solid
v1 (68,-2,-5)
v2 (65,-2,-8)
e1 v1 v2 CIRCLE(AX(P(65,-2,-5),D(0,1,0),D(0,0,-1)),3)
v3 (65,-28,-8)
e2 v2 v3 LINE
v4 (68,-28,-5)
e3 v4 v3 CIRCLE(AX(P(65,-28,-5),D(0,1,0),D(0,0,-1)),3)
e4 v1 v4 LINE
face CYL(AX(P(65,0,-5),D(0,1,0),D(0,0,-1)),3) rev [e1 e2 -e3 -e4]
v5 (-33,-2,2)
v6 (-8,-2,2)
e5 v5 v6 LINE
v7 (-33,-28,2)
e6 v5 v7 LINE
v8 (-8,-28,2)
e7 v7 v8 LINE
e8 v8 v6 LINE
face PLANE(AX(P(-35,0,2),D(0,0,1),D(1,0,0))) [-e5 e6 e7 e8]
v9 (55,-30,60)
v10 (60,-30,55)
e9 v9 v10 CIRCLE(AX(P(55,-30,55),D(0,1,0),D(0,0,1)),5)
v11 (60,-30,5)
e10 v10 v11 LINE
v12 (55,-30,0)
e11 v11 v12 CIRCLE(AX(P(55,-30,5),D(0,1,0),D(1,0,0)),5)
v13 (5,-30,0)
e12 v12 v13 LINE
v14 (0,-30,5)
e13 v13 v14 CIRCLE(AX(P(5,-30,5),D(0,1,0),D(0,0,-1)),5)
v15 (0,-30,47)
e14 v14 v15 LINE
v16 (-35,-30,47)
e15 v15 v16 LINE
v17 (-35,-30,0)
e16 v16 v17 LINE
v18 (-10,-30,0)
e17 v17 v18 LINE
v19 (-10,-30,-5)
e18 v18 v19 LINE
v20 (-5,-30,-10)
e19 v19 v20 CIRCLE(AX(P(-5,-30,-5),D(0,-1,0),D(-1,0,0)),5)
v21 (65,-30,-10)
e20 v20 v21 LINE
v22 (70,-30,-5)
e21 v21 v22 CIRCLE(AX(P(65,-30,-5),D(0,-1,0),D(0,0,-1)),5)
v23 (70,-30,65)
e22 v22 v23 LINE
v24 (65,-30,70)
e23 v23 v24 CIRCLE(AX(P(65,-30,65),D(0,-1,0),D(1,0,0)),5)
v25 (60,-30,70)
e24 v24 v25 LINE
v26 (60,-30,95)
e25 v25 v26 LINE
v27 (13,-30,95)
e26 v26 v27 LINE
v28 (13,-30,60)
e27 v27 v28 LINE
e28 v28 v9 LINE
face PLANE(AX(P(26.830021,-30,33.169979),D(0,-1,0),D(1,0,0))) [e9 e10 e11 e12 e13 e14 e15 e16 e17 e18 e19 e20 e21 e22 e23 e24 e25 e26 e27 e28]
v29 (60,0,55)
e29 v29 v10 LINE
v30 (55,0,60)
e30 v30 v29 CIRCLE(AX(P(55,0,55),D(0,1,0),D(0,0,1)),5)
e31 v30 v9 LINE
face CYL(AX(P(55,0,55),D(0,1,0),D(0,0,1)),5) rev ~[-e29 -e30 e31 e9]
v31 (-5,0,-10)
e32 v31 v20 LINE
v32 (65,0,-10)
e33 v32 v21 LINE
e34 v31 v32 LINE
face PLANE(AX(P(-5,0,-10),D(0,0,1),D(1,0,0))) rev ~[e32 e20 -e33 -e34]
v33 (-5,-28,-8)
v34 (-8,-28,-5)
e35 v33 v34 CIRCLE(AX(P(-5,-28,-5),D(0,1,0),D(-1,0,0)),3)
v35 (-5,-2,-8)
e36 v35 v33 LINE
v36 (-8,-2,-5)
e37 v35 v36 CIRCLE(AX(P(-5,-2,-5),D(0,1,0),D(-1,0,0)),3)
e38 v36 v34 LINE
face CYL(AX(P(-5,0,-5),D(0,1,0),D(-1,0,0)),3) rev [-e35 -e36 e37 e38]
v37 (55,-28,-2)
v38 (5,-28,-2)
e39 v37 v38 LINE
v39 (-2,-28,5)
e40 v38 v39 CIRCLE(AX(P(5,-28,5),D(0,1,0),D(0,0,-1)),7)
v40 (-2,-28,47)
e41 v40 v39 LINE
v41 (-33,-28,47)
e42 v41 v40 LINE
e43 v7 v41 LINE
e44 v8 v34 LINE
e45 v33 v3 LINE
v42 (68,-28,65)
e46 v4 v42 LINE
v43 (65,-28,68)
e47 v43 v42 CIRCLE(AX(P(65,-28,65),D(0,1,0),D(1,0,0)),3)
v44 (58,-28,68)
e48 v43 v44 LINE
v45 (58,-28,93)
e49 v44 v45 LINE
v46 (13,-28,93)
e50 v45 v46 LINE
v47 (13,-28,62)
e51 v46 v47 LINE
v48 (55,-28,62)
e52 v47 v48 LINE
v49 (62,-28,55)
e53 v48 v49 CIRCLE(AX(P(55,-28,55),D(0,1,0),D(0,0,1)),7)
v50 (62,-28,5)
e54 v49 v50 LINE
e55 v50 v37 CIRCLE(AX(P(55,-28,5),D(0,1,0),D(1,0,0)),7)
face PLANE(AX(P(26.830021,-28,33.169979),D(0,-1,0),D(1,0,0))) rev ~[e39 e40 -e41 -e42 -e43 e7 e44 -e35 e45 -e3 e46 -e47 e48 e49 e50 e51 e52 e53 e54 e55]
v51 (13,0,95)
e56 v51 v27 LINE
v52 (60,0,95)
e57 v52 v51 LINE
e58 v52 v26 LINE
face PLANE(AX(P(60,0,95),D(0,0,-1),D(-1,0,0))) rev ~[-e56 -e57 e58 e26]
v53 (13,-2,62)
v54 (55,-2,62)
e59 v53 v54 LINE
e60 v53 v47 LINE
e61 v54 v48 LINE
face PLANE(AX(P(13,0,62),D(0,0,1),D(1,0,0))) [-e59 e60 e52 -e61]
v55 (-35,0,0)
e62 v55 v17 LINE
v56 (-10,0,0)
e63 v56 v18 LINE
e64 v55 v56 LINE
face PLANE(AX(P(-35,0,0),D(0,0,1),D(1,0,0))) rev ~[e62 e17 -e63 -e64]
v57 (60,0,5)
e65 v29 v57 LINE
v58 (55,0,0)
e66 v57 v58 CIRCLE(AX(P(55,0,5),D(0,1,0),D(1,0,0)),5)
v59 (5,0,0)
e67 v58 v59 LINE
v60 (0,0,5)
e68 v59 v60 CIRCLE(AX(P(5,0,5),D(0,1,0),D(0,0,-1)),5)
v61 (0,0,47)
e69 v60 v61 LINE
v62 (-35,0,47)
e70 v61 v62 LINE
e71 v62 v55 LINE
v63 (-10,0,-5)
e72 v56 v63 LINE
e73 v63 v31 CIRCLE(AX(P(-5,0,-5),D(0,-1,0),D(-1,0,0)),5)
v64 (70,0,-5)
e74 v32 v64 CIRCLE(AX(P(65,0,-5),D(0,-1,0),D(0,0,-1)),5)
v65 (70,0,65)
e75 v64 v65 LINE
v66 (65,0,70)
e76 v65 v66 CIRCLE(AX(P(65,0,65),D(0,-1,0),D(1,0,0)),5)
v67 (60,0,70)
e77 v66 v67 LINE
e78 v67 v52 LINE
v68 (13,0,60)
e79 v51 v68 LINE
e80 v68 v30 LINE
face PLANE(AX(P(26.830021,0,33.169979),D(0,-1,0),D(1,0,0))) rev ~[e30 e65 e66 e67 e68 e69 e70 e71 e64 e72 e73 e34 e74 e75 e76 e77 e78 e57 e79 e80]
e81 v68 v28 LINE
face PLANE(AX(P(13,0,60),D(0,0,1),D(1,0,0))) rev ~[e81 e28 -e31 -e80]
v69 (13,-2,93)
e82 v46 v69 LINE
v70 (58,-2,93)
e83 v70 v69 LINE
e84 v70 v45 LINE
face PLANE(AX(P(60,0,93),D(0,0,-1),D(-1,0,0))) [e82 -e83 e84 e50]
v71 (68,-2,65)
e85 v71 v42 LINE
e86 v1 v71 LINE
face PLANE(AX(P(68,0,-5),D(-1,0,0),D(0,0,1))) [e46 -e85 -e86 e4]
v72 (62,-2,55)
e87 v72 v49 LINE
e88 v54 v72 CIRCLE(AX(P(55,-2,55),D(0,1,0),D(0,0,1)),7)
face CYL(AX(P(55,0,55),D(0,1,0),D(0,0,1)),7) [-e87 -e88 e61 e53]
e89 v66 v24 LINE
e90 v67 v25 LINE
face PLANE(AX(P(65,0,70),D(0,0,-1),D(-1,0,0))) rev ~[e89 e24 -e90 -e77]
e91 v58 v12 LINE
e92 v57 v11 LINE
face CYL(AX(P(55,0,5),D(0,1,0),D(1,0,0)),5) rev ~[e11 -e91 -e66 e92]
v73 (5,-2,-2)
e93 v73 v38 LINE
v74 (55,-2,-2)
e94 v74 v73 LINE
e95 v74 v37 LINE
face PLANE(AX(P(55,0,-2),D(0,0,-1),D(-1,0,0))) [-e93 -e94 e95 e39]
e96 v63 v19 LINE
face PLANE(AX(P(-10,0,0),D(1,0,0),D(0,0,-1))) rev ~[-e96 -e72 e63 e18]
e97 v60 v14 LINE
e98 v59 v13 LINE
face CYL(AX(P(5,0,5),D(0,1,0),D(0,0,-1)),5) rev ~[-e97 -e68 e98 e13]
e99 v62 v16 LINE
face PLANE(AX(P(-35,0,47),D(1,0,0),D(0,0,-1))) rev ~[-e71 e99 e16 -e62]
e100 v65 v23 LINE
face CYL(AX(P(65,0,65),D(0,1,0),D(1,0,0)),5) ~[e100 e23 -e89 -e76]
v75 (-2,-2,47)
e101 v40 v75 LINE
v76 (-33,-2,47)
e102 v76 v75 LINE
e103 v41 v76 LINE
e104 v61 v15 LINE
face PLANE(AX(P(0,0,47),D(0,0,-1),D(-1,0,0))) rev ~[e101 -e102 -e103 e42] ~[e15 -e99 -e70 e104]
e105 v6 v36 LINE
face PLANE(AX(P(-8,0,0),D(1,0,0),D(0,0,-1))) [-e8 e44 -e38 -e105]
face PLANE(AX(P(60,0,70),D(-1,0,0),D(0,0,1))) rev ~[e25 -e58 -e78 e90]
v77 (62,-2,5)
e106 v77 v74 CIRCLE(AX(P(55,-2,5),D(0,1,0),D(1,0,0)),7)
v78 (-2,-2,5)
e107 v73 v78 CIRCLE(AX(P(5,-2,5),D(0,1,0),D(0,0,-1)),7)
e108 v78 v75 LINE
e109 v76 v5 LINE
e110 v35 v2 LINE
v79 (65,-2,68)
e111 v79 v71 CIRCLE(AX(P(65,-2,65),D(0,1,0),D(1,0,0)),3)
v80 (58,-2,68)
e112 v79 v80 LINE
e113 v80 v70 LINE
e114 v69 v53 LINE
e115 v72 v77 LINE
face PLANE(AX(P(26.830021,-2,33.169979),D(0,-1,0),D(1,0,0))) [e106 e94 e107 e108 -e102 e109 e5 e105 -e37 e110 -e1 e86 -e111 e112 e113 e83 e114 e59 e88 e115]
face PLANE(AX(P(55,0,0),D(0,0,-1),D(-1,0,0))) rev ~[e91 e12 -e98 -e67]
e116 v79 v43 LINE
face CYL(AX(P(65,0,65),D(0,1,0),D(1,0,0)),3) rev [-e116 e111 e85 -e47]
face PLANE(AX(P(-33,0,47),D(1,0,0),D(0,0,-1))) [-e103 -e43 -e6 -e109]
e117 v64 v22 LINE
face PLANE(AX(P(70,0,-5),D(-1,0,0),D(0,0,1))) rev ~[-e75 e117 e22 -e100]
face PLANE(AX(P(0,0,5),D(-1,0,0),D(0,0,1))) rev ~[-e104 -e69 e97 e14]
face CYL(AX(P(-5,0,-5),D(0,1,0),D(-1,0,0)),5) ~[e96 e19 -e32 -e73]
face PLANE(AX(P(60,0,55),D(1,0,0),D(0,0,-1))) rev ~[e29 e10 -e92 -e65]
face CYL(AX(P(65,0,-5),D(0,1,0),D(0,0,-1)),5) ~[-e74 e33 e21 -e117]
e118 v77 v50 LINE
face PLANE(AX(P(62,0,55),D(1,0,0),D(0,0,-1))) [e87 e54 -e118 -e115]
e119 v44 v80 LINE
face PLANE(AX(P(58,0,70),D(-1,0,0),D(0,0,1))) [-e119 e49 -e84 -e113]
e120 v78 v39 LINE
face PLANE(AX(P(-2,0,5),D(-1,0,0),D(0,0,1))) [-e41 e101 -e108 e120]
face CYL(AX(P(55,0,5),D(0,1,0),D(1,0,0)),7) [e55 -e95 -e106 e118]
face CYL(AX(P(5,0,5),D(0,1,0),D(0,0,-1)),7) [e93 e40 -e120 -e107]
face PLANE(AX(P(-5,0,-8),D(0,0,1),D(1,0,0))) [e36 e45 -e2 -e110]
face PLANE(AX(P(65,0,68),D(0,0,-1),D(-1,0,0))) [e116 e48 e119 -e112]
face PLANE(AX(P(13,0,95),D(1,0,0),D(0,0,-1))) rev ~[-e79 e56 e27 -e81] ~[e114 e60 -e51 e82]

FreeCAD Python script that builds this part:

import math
import FreeCAD as App
import Part
import Sketcher

V = App.Vector
Q = App.Units.Quantity


def faces_at(feature, points):
    """Names of the faces that lie closest to the given points."""
    faces = feature.Shape.Faces
    near = lambda p: min(range(len(faces)), key=lambda i: faces[i].distToShape(Part.Vertex(*p))[0])
    return sorted({f"Face{near(p) + 1}" for p in points})

doc = App.newDocument("Part")
params = doc.addObject("Spreadsheet::Sheet", "Params")
for row, (alias, value) in enumerate([
    ("sketch1_radius", "5 mm"),
    ("sketch1_width", "35 mm"),
    ("sketch1_width2", "70 mm"),
    ("sketch1_width3", "47 mm"),
    ("pad1_length", "30 mm"),
    ("thickness_wall", "2 mm"),
    ("sketch2_width", "31 mm"),
    ("sketch2_height", "26 mm"),
    ("pocket1_length", "4 mm"),
], start=1):
    params.set(f"A{row}", alias)
    params.set(f"B{row}", "=" + value)
    params.setAlias(f"B{row}", alias)

body = doc.addObject("PartDesign::Body", "Body")

# Sketch on XZ plane
sketch1 = body.newObject("Sketcher::SketchObject", "Sketch")
sketch1.AttachmentSupport = (doc.getObject("XZ_Plane"), [""])
sketch1.MapMode = "FlatFace"
sketch1.addGeometry([
    Part.ArcOfCircle(Part.Circle(V(5, 5, 0), V(0, 0, 1), 5), math.radians(180), math.radians(270)),  # 0
    Part.LineSegment(V(0, 5, 0), V(0, 47, 0)),  # 1
    Part.LineSegment(V(0, 47, 0), V(-35, 47, 0)),  # 2
    Part.LineSegment(V(-35, 47, 0), V(-35, 0, 0)),  # 3
    Part.LineSegment(V(-35, 0, 0), V(-10, 0, 0)),  # 4
    Part.LineSegment(V(-10, 0, 0), V(-10, -5, 0)),  # 5
    Part.ArcOfCircle(Part.Circle(V(-5, -5, 0), V(0, 0, 1), 5), math.radians(180), math.radians(270)),  # 6
    Part.LineSegment(V(-5, -10, 0), V(65, -10, 0)),  # 7
    Part.ArcOfCircle(Part.Circle(V(65, -5, 0), V(0, 0, 1), 5), math.radians(-90), math.radians(0)),  # 8
    Part.LineSegment(V(70, -5, 0), V(70, 65, 0)),  # 9
    Part.ArcOfCircle(Part.Circle(V(65, 65, 0), V(0, 0, 1), 5), math.radians(0), math.radians(90)),  # 10
    Part.LineSegment(V(65, 70, 0), V(60, 70, 0)),  # 11
    Part.LineSegment(V(60, 70, 0), V(60, 95, 0)),  # 12
    Part.LineSegment(V(60, 95, 0), V(13, 95, 0)),  # 13
    Part.LineSegment(V(13, 95, 0), V(13, 60, 0)),  # 14
    Part.LineSegment(V(13, 60, 0), V(55, 60, 0)),  # 15
    Part.ArcOfCircle(Part.Circle(V(55, 55, 0), V(0, 0, 1), 5), math.radians(0), math.radians(90)),  # 16
    Part.LineSegment(V(60, 55, 0), V(60, 5, 0)),  # 17
    Part.ArcOfCircle(Part.Circle(V(55, 5, 0), V(0, 0, 1), 5), math.radians(-90), math.radians(0)),  # 18
    Part.LineSegment(V(55, 0, 0), V(5, 0, 0)),  # 19
], False)
sketch1.addConstraint([
    Sketcher.Constraint("Tangent", 0, 1, 1, 1),
    Sketcher.Constraint("Coincident", 1, 2, 2, 1),
    Sketcher.Constraint("Coincident", 2, 2, 3, 1),
    Sketcher.Constraint("Coincident", 3, 2, 4, 1),
    Sketcher.Constraint("Coincident", 4, 2, 5, 1),
    Sketcher.Constraint("Tangent", 5, 2, 6, 1),
    Sketcher.Constraint("Tangent", 6, 2, 7, 1),
    Sketcher.Constraint("Tangent", 7, 2, 8, 1),
    Sketcher.Constraint("Tangent", 8, 2, 9, 1),
    Sketcher.Constraint("Tangent", 9, 2, 10, 1),
    Sketcher.Constraint("Tangent", 10, 2, 11, 1),
    Sketcher.Constraint("Coincident", 11, 2, 12, 1),
    Sketcher.Constraint("Coincident", 12, 2, 13, 1),
    Sketcher.Constraint("Coincident", 13, 2, 14, 1),
    Sketcher.Constraint("Coincident", 14, 2, 15, 1),
    Sketcher.Constraint("Tangent", 15, 2, 16, 2),
    Sketcher.Constraint("Tangent", 16, 1, 17, 1),
    Sketcher.Constraint("Tangent", 17, 2, 18, 2),
    Sketcher.Constraint("Tangent", 18, 1, 19, 1),
    Sketcher.Constraint("Tangent", 19, 2, 0, 2),
    Sketcher.Constraint("Vertical", 1),
    Sketcher.Constraint("Horizontal", 2),
    Sketcher.Constraint("Vertical", 3),
    Sketcher.Constraint("Horizontal", 4),
    Sketcher.Constraint("Vertical", 5),
    Sketcher.Constraint("Horizontal", 7),
    Sketcher.Constraint("Vertical", 9),
    Sketcher.Constraint("Horizontal", 11),
    Sketcher.Constraint("Vertical", 12),
    Sketcher.Constraint("Horizontal", 13),
    Sketcher.Constraint("Vertical", 14),
    Sketcher.Constraint("Horizontal", 15),
    Sketcher.Constraint("Vertical", 17),
    Sketcher.Constraint("Horizontal", 19),
    Sketcher.Constraint("Equal", 0, 6),
    Sketcher.Constraint("Equal", 6, 8),
    Sketcher.Constraint("Equal", 8, 10),
    Sketcher.Constraint("Equal", 10, 16),
    Sketcher.Constraint("Equal", 16, 18),
    Sketcher.Constraint("Symmetric", 0, 3, 6, 3, -1, 1),
    Sketcher.Constraint("PointOnObject", 0, 1, -2),
    Sketcher.Constraint("PointOnObject", 3, 2, -1),
    Sketcher.Constraint("PointOnObject", 18, 1, -1),
    Sketcher.Constraint("Vertical", 12, 2, 16, 1),
    Sketcher.Constraint("Equal", 15, 1),
    Sketcher.Constraint("Equal", 11, 5),
    Sketcher.Constraint("Equal", 7, 9),
    Sketcher.Constraint("Equal", 4, 12),
    Sketcher.Constraint("Equal", 2, 14),
    Sketcher.Constraint("Radius", 0, Q("5 mm")),
    Sketcher.Constraint("DistanceX", 2, 2, 2, 1, Q("35 mm")),
    Sketcher.Constraint("DistanceX", 7, 1, 7, 2, Q("70 mm")),
    Sketcher.Constraint("DistanceX", 13, 2, 13, 1, Q("47 mm")),
])
sketch1.setExpression("Constraints[49]", "Params.sketch1_radius")
sketch1.setExpression("Constraints[50]", "Params.sketch1_width")
sketch1.setExpression("Constraints[51]", "Params.sketch1_width2")
sketch1.setExpression("Constraints[52]", "Params.sketch1_width3")
pad1 = body.newObject("PartDesign::Pad", "Pad")
pad1.Profile = sketch1
pad1.setExpression("Length", "Params.pad1_length")
doc.recompute()

thickness = body.newObject("PartDesign::Thickness", "Thickness")
thickness.Base = (pad1, faces_at(pad1, [(13, -15, 77.5)]))
thickness.setExpression("Value", "Params.thickness_wall")
thickness.Reversed = True
thickness.Join = "Intersection"

# Sketch on XY plane
sketch2 = body.newObject("Sketcher::SketchObject", "Sketch001")
sketch2.AttachmentSupport = (doc.getObject("XY_Plane"), [""])
sketch2.MapMode = "FlatFace"
sketch2.AttachmentOffset = App.Placement(V(0, 0, 47), App.Rotation())
sketch2.addGeometry([
    Part.LineSegment(V(-33, -2, 0), V(-33, -28, 0)),
    Part.LineSegment(V(-33, -28, 0), V(-2, -28, 0)),
    Part.LineSegment(V(-2, -28, 0), V(-2, -2, 0)),
    Part.LineSegment(V(-2, -2, 0), V(-33, -2, 0)),
], False)
sketch2.addConstraint([
    Sketcher.Constraint("Coincident", 0, 2, 1, 1),
    Sketcher.Constraint("Coincident", 1, 2, 2, 1),
    Sketcher.Constraint("Coincident", 2, 2, 3, 1),
    Sketcher.Constraint("Coincident", 3, 2, 0, 1),
    Sketcher.Constraint("Vertical", 0),
    Sketcher.Constraint("Horizontal", 1),
    Sketcher.Constraint("Vertical", 2),
    Sketcher.Constraint("Horizontal", 3),
    Sketcher.Constraint("DistanceX", 1, 1, 1, 2, Q("31 mm")),
    Sketcher.Constraint("DistanceY", 0, 2, 0, 1, Q("26 mm")),
    Sketcher.Constraint("DistanceX", 0, 2, -1, 1, Q("33 mm")),
    Sketcher.Constraint("DistanceY", 0, 2, -1, 1, Q("28 mm")),
])
sketch2.setExpression("Constraints[8]", "Params.sketch2_width")
sketch2.setExpression("Constraints[9]", "Params.sketch2_height")
pocket1 = body.newObject("PartDesign::Pocket", "Pocket")
pocket1.Profile = sketch2
pocket1.setExpression("Length", "Params.pocket1_length")

doc.recompute()
